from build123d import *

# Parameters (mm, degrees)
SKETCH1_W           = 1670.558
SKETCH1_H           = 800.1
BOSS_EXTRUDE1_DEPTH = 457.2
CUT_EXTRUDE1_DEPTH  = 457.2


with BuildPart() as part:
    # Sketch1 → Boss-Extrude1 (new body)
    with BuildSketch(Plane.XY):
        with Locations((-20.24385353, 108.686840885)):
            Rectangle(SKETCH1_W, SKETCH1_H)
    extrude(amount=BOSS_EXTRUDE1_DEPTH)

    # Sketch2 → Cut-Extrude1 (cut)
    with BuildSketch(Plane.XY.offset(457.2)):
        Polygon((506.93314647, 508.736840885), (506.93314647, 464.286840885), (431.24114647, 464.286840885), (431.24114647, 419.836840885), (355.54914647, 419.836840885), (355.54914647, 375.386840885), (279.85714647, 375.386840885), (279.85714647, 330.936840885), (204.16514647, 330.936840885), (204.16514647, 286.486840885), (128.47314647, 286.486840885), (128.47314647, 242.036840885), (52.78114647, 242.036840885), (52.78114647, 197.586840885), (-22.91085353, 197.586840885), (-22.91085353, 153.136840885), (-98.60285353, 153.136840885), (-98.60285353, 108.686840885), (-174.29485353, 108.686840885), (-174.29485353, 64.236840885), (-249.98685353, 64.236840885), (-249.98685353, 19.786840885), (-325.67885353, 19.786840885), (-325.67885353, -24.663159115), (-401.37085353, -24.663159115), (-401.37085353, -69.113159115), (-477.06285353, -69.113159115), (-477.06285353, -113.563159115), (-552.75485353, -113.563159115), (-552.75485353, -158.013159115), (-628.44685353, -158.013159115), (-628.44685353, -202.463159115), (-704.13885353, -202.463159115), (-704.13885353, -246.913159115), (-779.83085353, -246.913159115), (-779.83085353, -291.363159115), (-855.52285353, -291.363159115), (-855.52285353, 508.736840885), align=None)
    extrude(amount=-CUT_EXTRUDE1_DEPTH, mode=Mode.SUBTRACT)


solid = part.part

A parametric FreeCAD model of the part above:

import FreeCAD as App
import Part
import Sketcher
Q = App.Units.Quantity

doc = App.newDocument("Part")
body = doc.addObject("PartDesign::Body", "Body")

sketch1 = doc.addObject("Sketcher::SketchObject", "Sketch")
body.addObject(sketch1)
sketch1.AttachmentSupport = (doc.XY_Plane, [""])
sketch1.MapMode = "FlatFace"
sketch1.addGeometry([
    Part.LineSegment(App.Vector(-856, 509, 0), App.Vector(-856, -291, 0)),
    Part.LineSegment(App.Vector(-856, -291, 0), App.Vector(815, -291, 0)),
    Part.LineSegment(App.Vector(815, -291, 0), App.Vector(815, 509, 0)),
    Part.LineSegment(App.Vector(815, 509, 0), App.Vector(-856, 509, 0)),
], False)
sketch1.addConstraint([
    Sketcher.Constraint("Coincident", 0, 2, 1, 1),
    Sketcher.Constraint("Coincident", 1, 2, 2, 1),
    Sketcher.Constraint("Coincident", 2, 2, 3, 1),
    Sketcher.Constraint("Coincident", 3, 2, 0, 1),
    Sketcher.Constraint("Vertical", 0),
    Sketcher.Constraint("Horizontal", 1),
    Sketcher.Constraint("Vertical", 2),
    Sketcher.Constraint("Horizontal", 3),
    Sketcher.Constraint("DistanceY", 0, 2, 0, 1, Q("31.5 in")),
    Sketcher.Constraint("DistanceX", 1, 1, 1, 2, Q("65.77 in")),
    Sketcher.Constraint("DistanceY", 0, 2, -1, 1, 291.363159),
    Sketcher.Constraint("DistanceX", 0, 2, -1, 1, 855.522854),
])
pad1 = doc.addObject("PartDesign::Pad", "Pad")
body.addObject(pad1)
pad1.Profile = sketch1
pad1.Length = Q("18 in")

sketch2 = doc.addObject("Sketcher::SketchObject", "Sketch001")
body.addObject(sketch2)
sketch2.AttachmentSupport = (doc.XY_Plane, [""])
sketch2.MapMode = "FlatFace"
sketch2.AttachmentOffset = App.Placement(App.Vector(0, 0, 18 * 25.4), App.Rotation())
sketch2.addGeometry([
    Part.LineSegment(App.Vector(507, 464, 0), App.Vector(507, 509, 0)),
    Part.LineSegment(App.Vector(507, 509, 0), App.Vector(-856, 509, 0)),
    Part.LineSegment(App.Vector(-856, 509, 0), App.Vector(-856, -291, 0)),
    Part.LineSegment(App.Vector(-856, -291, 0), App.Vector(-780, -291, 0)),
    Part.LineSegment(App.Vector(-780, -291, 0), App.Vector(-780, -247, 0)),
    Part.LineSegment(App.Vector(-780, -247, 0), App.Vector(-704, -247, 0)),
    Part.LineSegment(App.Vector(-704, -247, 0), App.Vector(-704, -202, 0)),
    Part.LineSegment(App.Vector(-704, -202, 0), App.Vector(-628, -202, 0)),
    Part.LineSegment(App.Vector(-628, -202, 0), App.Vector(-628, -158, 0)),
    Part.LineSegment(App.Vector(-628, -158, 0), App.Vector(-553, -158, 0)),
    Part.LineSegment(App.Vector(-553, -158, 0), App.Vector(-553, -114, 0)),
    Part.LineSegment(App.Vector(-553, -114, 0), App.Vector(-477, -114, 0)),
    Part.LineSegment(App.Vector(-477, -114, 0), App.Vector(-477, -69, 0)),
    Part.LineSegment(App.Vector(-477, -69, 0), App.Vector(-401, -69, 0)),
    Part.LineSegment(App.Vector(-401, -69, 0), App.Vector(-401, -25, 0)),
    Part.LineSegment(App.Vector(-401, -25, 0), App.Vector(-326, -25, 0)),
    Part.LineSegment(App.Vector(-326, -25, 0), App.Vector(-326, 20, 0)),
    Part.LineSegment(App.Vector(-326, 20, 0), App.Vector(-250, 20, 0)),
    Part.LineSegment(App.Vector(-250, 20, 0), App.Vector(-250, 64, 0)),
    Part.LineSegment(App.Vector(-250, 64, 0), App.Vector(-174, 64, 0)),
    Part.LineSegment(App.Vector(-174, 64, 0), App.Vector(-174, 109, 0)),
    Part.LineSegment(App.Vector(-174, 109, 0), App.Vector(-99, 109, 0)),
    Part.LineSegment(App.Vector(-99, 109, 0), App.Vector(-99, 153, 0)),
    Part.LineSegment(App.Vector(-99, 153, 0), App.Vector(-23, 153, 0)),
    Part.LineSegment(App.Vector(-23, 153, 0), App.Vector(-23, 198, 0)),
    Part.LineSegment(App.Vector(-23, 198, 0), App.Vector(53, 198, 0)),
    Part.LineSegment(App.Vector(53, 198, 0), App.Vector(53, 242, 0)),
    Part.LineSegment(App.Vector(53, 242, 0), App.Vector(128, 242, 0)),
    Part.LineSegment(App.Vector(128, 242, 0), App.Vector(128, 286, 0)),
    Part.LineSegment(App.Vector(128, 286, 0), App.Vector(204, 286, 0)),
    Part.LineSegment(App.Vector(204, 286, 0), App.Vector(204, 331, 0)),
    Part.LineSegment(App.Vector(204, 331, 0), App.Vector(280, 331, 0)),
    Part.LineSegment(App.Vector(280, 331, 0), App.Vector(280, 375, 0)),
    Part.LineSegment(App.Vector(280, 375, 0), App.Vector(356, 375, 0)),
    Part.LineSegment(App.Vector(356, 375, 0), App.Vector(356, 420, 0)),
    Part.LineSegment(App.Vector(356, 420, 0), App.Vector(431, 420, 0)),
    Part.LineSegment(App.Vector(431, 420, 0), App.Vector(431, 464, 0)),
    Part.LineSegment(App.Vector(431, 464, 0), App.Vector(507, 464, 0)),
], False)
sketch2.addConstraint([
    Sketcher.Constraint("Coincident", 0, 2, 1, 1),
    Sketcher.Constraint("Coincident", 1, 2, 2, 1),
    Sketcher.Constraint("Coincident", 2, 2, 3, 1),
    Sketcher.Constraint("Coincident", 3, 2, 4, 1),
    Sketcher.Constraint("Coincident", 4, 2, 5, 1),
    Sketcher.Constraint("Coincident", 5, 2, 6, 1),
    Sketcher.Constraint("Coincident", 6, 2, 7, 1),
    Sketcher.Constraint("Coincident", 7, 2, 8, 1),
    Sketcher.Constraint("Coincident", 8, 2, 9, 1),
    Sketcher.Constraint("Coincident", 9, 2, 10, 1),
    Sketcher.Constraint("Coincident", 10, 2, 11, 1),
    Sketcher.Constraint("Coincident", 11, 2, 12, 1),
    Sketcher.Constraint("Coincident", 12, 2, 13, 1),
    Sketcher.Constraint("Coincident", 13, 2, 14, 1),
    Sketcher.Constraint("Coincident", 14, 2, 15, 1),
    Sketcher.Constraint("Coincident", 15, 2, 16, 1),
    Sketcher.Constraint("Coincident", 16, 2, 17, 1),
    Sketcher.Constraint("Coincident", 17, 2, 18, 1),
    Sketcher.Constraint("Coincident", 18, 2, 19, 1),
    Sketcher.Constraint("Coincident", 19, 2, 20, 1),
    Sketcher.Constraint("Coincident", 20, 2, 21, 1),
    Sketcher.Constraint("Coincident", 21, 2, 22, 1),
    Sketcher.Constraint("Coincident", 22, 2, 23, 1),
    Sketcher.Constraint("Coincident", 23, 2, 24, 1),
    Sketcher.Constraint("Coincident", 24, 2, 25, 1),
    Sketcher.Constraint("Coincident", 25, 2, 26, 1),
    Sketcher.Constraint("Coincident", 26, 2, 27, 1),
    Sketcher.Constraint("Coincident", 27, 2, 28, 1),
    Sketcher.Constraint("Coincident", 28, 2, 29, 1),
    Sketcher.Constraint("Coincident", 29, 2, 30, 1),
    Sketcher.Constraint("Coincident", 30, 2, 31, 1),
    Sketcher.Constraint("Coincident", 31, 2, 32, 1),
    Sketcher.Constraint("Coincident", 32, 2, 33, 1),
    Sketcher.Constraint("Coincident", 33, 2, 34, 1),
    Sketcher.Constraint("Coincident", 34, 2, 35, 1),
    Sketcher.Constraint("Coincident", 35, 2, 36, 1),
    Sketcher.Constraint("Coincident", 36, 2, 37, 1),
    Sketcher.Constraint("Coincident", 37, 2, 0, 1),
    Sketcher.Constraint("Vertical", 0),
    Sketcher.Constraint("Horizontal", 1),
    Sketcher.Constraint("Vertical", 2),
    Sketcher.Constraint("Horizontal", 3),
    Sketcher.Constraint("Vertical", 4),
    Sketcher.Constraint("Horizontal", 5),
    Sketcher.Constraint("Vertical", 6),
    Sketcher.Constraint("Horizontal", 7),
    Sketcher.Constraint("Vertical", 8),
    Sketcher.Constraint("Horizontal", 9),
    Sketcher.Constraint("Vertical", 10),
    Sketcher.Constraint("Horizontal", 11),
    Sketcher.Constraint("Vertical", 12),
    Sketcher.Constraint("Horizontal", 13),
    Sketcher.Constraint("Vertical", 14),
    Sketcher.Constraint("Horizontal", 15),
    Sketcher.Constraint("Vertical", 16),
    Sketcher.Constraint("Horizontal", 17),
    Sketcher.Constraint("Vertical", 18),
    Sketcher.Constraint("Horizontal", 19),
    Sketcher.Constraint("Vertical", 20),
    Sketcher.Constraint("Horizontal", 21),
    Sketcher.Constraint("Vertical", 22),
    Sketcher.Constraint("Horizontal", 23),
    Sketcher.Constraint("Vertical", 24),
    Sketcher.Constraint("Horizontal", 25),
    Sketcher.Constraint("Vertical", 26),
    Sketcher.Constraint("Horizontal", 27),
    Sketcher.Constraint("Vertical", 28),
    Sketcher.Constraint("Horizontal", 29),
    Sketcher.Constraint("Vertical", 30),
    Sketcher.Constraint("Horizontal", 31),
    Sketcher.Constraint("Vertical", 32),
    Sketcher.Constraint("Horizontal", 33),
    Sketcher.Constraint("Vertical", 34),
    Sketcher.Constraint("Horizontal", 35),
    Sketcher.Constraint("Vertical", 36),
    Sketcher.Constraint("Horizontal", 37),
    Sketcher.Constraint("Equal", 3, 5),
    Sketcher.Constraint("Equal", 5, 7),
    Sketcher.Constraint("Equal", 7, 9),
    Sketcher.Constraint("Equal", 9, 11),
    Sketcher.Constraint("Equal", 11, 13),
    Sketcher.Constraint("Equal", 13, 15),
    Sketcher.Constraint("Equal", 15, 17),
    Sketcher.Constraint("Equal", 17, 19),
    Sketcher.Constraint("Equal", 19, 21),
    Sketcher.Constraint("Equal", 21, 23),
    Sketcher.Constraint("Equal", 23, 25),
    Sketcher.Constraint("Equal", 25, 27),
    Sketcher.Constraint("Equal", 27, 29),
    Sketcher.Constraint("Equal", 29, 31),
    Sketcher.Constraint("Equal", 31, 33),
    Sketcher.Constraint("Equal", 33, 35),
    Sketcher.Constraint("Equal", 35, 37),
    Sketcher.Constraint("Equal", 0, 4),
    Sketcher.Constraint("Equal", 4, 6),
    Sketcher.Constraint("Equal", 6, 8),
    Sketcher.Constraint("Equal", 8, 10),
    Sketcher.Constraint("Equal", 10, 12),
    Sketcher.Constraint("Equal", 12, 14),
    Sketcher.Constraint("Equal", 14, 16),
    Sketcher.Constraint("Equal", 16, 18),
    Sketcher.Constraint("Equal", 18, 20),
    Sketcher.Constraint("Equal", 20, 22),
    Sketcher.Constraint("Equal", 22, 24),
    Sketcher.Constraint("Equal", 24, 26),
    Sketcher.Constraint("Equal", 26, 28),
    Sketcher.Constraint("Equal", 28, 30),
    Sketcher.Constraint("Equal", 30, 32),
    Sketcher.Constraint("Equal", 32, 34),
    Sketcher.Constraint("Equal", 34, 36),
    Sketcher.Constraint("DistanceY", 2, 2, 2, 1, Q("31.5 in")),
    Sketcher.Constraint("DistanceX", 1, 2, 1, 1, Q("53.64 in")),
    Sketcher.Constraint("DistanceY", -1, 1, 0, 2, 508.736841),
    Sketcher.Constraint("DistanceX", -1, 1, 0, 2, 506.933146),
])
pocket1 = doc.addObject("PartDesign::Pocket", "Pocket")
body.addObject(pocket1)
pocket1.Profile = sketch2
pocket1.Length = Q("18 in")

doc.recompute()
